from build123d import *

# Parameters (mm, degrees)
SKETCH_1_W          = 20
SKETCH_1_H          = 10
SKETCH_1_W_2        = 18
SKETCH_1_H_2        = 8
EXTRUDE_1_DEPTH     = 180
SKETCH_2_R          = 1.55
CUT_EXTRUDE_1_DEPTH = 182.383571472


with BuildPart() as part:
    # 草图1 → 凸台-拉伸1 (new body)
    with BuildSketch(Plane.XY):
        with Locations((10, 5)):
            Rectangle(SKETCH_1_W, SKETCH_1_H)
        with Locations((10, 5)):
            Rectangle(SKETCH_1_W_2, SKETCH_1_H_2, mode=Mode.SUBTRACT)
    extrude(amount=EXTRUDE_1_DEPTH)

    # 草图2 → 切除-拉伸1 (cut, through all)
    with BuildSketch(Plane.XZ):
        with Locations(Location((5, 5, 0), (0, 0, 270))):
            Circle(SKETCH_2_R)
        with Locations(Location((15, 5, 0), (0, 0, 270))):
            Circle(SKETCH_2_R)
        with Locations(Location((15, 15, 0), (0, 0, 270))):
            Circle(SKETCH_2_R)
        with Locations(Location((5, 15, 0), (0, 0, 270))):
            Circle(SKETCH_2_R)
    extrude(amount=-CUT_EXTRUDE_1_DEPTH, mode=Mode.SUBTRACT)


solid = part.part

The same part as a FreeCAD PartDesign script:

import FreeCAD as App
import Part
import Sketcher

V = App.Vector


def add_polygon(sketch, points):
    """Adds a closed chain of lines whose ends are joined by coincident constraints."""
    first, n = sketch.GeometryCount, len(points)
    for a, b in zip(points, points[1:] + points[:1]):
        sketch.addGeometry(Part.LineSegment(App.Vector(*a, 0), App.Vector(*b, 0)), False)
    for i in range(n):
        sketch.addConstraint(Sketcher.Constraint("Coincident", first + i, 2, first + (i + 1) % n, 1))

doc = App.newDocument("Part")
body = doc.addObject("PartDesign::Body", "Body")

# Sketch on XY plane
sketch1 = body.newObject("Sketcher::SketchObject", "Sketch")
sketch1.AttachmentSupport = (doc.getObject("XY_Plane"), [""])
sketch1.MapMode = "FlatFace"
add_polygon(sketch1, [(0, 10), (0, 0), (20, 0), (20, 10)])  # lines 0-3
add_polygon(sketch1, [(19, 1), (1, 1), (1, 9), (19, 9)])  # lines 4-7
sketch1.addConstraint([
    Sketcher.Constraint("Vertical", 0),
    Sketcher.Constraint("Horizontal", 1),
    Sketcher.Constraint("Vertical", 2),
    Sketcher.Constraint("Horizontal", 3),
    Sketcher.Constraint("Horizontal", 4),
    Sketcher.Constraint("Vertical", 5),
    Sketcher.Constraint("Horizontal", 6),
    Sketcher.Constraint("Vertical", 7),
    Sketcher.Constraint("Coincident", 0, 2, -1, 1),
    Sketcher.Constraint("DistanceX", 1, 1, 1, 2, 20.0),
    Sketcher.Constraint("DistanceX", 4, 2, 4, 1, 18.0),
    Sketcher.Constraint("DistanceY", 0, 2, 0, 1, 10.0),
    Sketcher.Constraint("DistanceY", 5, 1, 5, 2, 8.0),
    Sketcher.Constraint("DistanceX", -1, 1, 4, 2, 1.0),
    Sketcher.Constraint("DistanceY", -1, 1, 4, 2, 1.0),
])
pad1 = body.newObject("PartDesign::Pad", "Pad")
pad1.Profile = sketch1
pad1.Length = 180

# Sketch on XZ plane
sketch2 = body.newObject("Sketcher::SketchObject", "Sketch001")
sketch2.AttachmentSupport = (doc.getObject("XZ_Plane"), [""])
sketch2.MapMode = "FlatFace"
sketch2.addGeometry([
    Part.Circle(V(5, 5, 0), V(0, 0, 1), 1.6),
    Part.Circle(V(15, 5, 0), V(0, 0, 1), 1.6),
    Part.Circle(V(15, 15, 0), V(0, 0, 1), 1.6),
    Part.Circle(V(5, 15, 0), V(0, 0, 1), 1.6),
], False)
sketch2.addConstraint([
    Sketcher.Constraint("Equal", 0, 1),
    Sketcher.Constraint("Equal", 1, 2),
    Sketcher.Constraint("Equal", 2, 3),
    Sketcher.Constraint("Horizontal", 0, 3, 1, 3),
    Sketcher.Constraint("Horizontal", 2, 3, 3, 3),
    Sketcher.Constraint("Vertical", 1, 3, 2, 3),
    Sketcher.Constraint("Vertical", 0, 3, 3, 3),
    Sketcher.Constraint("Diameter", 0, 3.1),
    Sketcher.Constraint("DistanceX", -1, 1, 0, 3, 5.0),
    Sketcher.Constraint("DistanceY", -1, 1, 0, 3, 5.0),
    Sketcher.Constraint("DistanceX", -1, 1, 1, 3, 15.0),
    Sketcher.Constraint("DistanceY", -1, 1, 2, 3, 15.0),
])
pocket1 = body.newObject("PartDesign::Pocket", "Pocket")
pocket1.Profile = sketch2
pocket1.Type = "ThroughAll"

doc.recompute()
